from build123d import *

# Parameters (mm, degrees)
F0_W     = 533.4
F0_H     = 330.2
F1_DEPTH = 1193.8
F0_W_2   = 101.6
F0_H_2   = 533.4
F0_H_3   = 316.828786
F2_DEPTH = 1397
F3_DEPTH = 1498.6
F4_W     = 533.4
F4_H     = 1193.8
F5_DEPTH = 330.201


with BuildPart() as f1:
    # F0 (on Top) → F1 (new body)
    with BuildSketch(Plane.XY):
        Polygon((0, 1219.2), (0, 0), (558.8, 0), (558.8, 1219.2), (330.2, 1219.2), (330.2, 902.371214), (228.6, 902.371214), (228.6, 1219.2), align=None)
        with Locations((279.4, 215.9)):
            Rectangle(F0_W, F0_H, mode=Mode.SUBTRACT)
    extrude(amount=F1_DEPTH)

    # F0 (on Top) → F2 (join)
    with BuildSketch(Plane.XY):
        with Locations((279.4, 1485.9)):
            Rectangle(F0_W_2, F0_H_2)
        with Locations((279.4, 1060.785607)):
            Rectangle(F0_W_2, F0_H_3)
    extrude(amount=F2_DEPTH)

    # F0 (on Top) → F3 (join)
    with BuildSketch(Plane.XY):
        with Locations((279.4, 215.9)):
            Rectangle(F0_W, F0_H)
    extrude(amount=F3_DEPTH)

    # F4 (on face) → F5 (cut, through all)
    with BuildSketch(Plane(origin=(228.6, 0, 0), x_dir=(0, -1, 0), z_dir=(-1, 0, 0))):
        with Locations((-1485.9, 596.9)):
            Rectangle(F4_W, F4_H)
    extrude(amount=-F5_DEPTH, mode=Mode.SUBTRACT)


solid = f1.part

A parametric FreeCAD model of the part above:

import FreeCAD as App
import Part
import Sketcher
from FreeCAD import Vector
Q = App.Units.Quantity


def add_polygon(sketch, points):
    """Adds a closed chain of lines whose ends are joined by coincident constraints."""
    first, n = sketch.GeometryCount, len(points)
    for a, b in zip(points, points[1:] + points[:1]):
        sketch.addGeometry(Part.LineSegment(App.Vector(*a, 0), App.Vector(*b, 0)), False)
    for i in range(n):
        sketch.addConstraint(Sketcher.Constraint("Coincident", first + i, 2, first + (i + 1) % n, 1))

doc = App.newDocument("Part")
params = doc.addObject("Spreadsheet::Sheet", "Params")
for row, (alias, value) in enumerate([
    ("sketch1_width", "22 in"),
    ("sketch1_width2", "9 in"),
    ("sketch1_width3", "21 in"),
    ("sketch1_height", "48 in"),
    ("sketch1_height2", "13 in"),
    ("pad1_length", "47 in"),
    ("sketch2_width", "4 in"),
    ("pad2_length", "55 in"),
    ("sketch3_width", "21 in"),
    ("sketch3_height", "13 in"),
    ("pad3_length", "59 in"),
    ("sketch4_width", "21 in"),
    ("sketch4_height", "47 in"),
], start=1):
    params.set(f"A{row}", alias)
    params.set(f"B{row}", "=" + value)
    params.setAlias(f"B{row}", alias)

body = doc.addObject("PartDesign::Body", "Body")

sketch1 = body.newObject("Sketcher::SketchObject", "Sketch")
sketch1.AttachmentSupport = (doc.getObject("XY_Plane"), [""])
sketch1.MapMode = "FlatFace"
add_polygon(sketch1, [(0, 1219.2), (0, 0), (558.8, 0), (558.8, 1219.2), (330.2, 1219.2), (330.2, 902.371214), (228.6, 902.371214), (228.6, 1219.2)])
add_polygon(sketch1, [(546.1, 50.8), (12.7, 50.8), (12.7, 381), (546.1, 381)])
sketch1.addConstraint(Sketcher.Constraint("Vertical", 0))
sketch1.addConstraint(Sketcher.Constraint("Horizontal", 1))
sketch1.addConstraint(Sketcher.Constraint("Vertical", 2))
sketch1.addConstraint(Sketcher.Constraint("Horizontal", 3))
sketch1.addConstraint(Sketcher.Constraint("Vertical", 4))
sketch1.addConstraint(Sketcher.Constraint("Horizontal", 5))
sketch1.addConstraint(Sketcher.Constraint("Vertical", 6))
sketch1.addConstraint(Sketcher.Constraint("Horizontal", 7))
sketch1.addConstraint(Sketcher.Constraint("Horizontal", 8))
sketch1.addConstraint(Sketcher.Constraint("Vertical", 9))
sketch1.addConstraint(Sketcher.Constraint("Horizontal", 10))
sketch1.addConstraint(Sketcher.Constraint("Vertical", 11))
sketch1.addConstraint(Sketcher.Constraint("Coincident", 0, 2, -1, 1))
sketch1.addConstraint(Sketcher.Constraint("Horizontal", 3, 2, 6, 2))
sketch1.addConstraint(Sketcher.Constraint("Equal", 3, 7))
sketch1.addConstraint(Sketcher.Constraint("DistanceX", 1, 1, 1, 2, Q("22 in")))
sketch1.addConstraint(Sketcher.Constraint("DistanceX", 3, 2, 3, 1, Q("9 in")))
sketch1.addConstraint(Sketcher.Constraint("DistanceX", 8, 2, 8, 1, Q("21 in")))
sketch1.addConstraint(Sketcher.Constraint("DistanceY", 0, 2, 0, 1, Q("48 in")))
sketch1.addConstraint(Sketcher.Constraint("DistanceY", 9, 1, 9, 2, Q("13 in")))
sketch1.addConstraint(Sketcher.Constraint("DistanceY", -1, 1, 8, 2, Q("2 in")))
sketch1.addConstraint(Sketcher.Constraint("DistanceX", -1, 1, 8, 2, Q("0.5 in")))
sketch1.addConstraint(Sketcher.Constraint("DistanceY", 4, 2, 4, 1, 316.828786))
sketch1.setExpression("Constraints[27]", "Params.sketch1_width")
sketch1.setExpression("Constraints[28]", "Params.sketch1_width2")
sketch1.setExpression("Constraints[29]", "Params.sketch1_width3")
sketch1.setExpression("Constraints[30]", "Params.sketch1_height")
sketch1.setExpression("Constraints[31]", "Params.sketch1_height2")
pad1 = body.newObject("PartDesign::Pad", "Pad")
pad1.Profile = sketch1
pad1.setExpression("Length", "Params.pad1_length")

sketch2 = body.newObject("Sketcher::SketchObject", "Sketch001")
sketch2.AttachmentSupport = (doc.getObject("XY_Plane"), [""])
sketch2.MapMode = "FlatFace"
add_polygon(sketch2, [(228.6, 1752.6), (228.6, 902.371214), (330.2, 902.371214), (330.2, 1752.6)])
sketch2.addConstraint(Sketcher.Constraint("Vertical", 0))
sketch2.addConstraint(Sketcher.Constraint("Horizontal", 1))
sketch2.addConstraint(Sketcher.Constraint("Vertical", 2))
sketch2.addConstraint(Sketcher.Constraint("Horizontal", 3))
sketch2.addConstraint(Sketcher.Constraint("DistanceX", 1, 1, 1, 2, Q("4 in")))
sketch2.addConstraint(Sketcher.Constraint("DistanceX", -1, 1, 0, 2, Q("9 in")))
sketch2.addConstraint(Sketcher.Constraint("DistanceY", -1, 1, 2, 2, Q("69 in")))
sketch2.addConstraint(Sketcher.Constraint("DistanceY", 0, 2, 0, 1, 850.228786))
sketch2.setExpression("Constraints[8]", "Params.sketch2_width")
pad2 = body.newObject("PartDesign::Pad", "Pad001")
pad2.Profile = sketch2
pad2.setExpression("Length", "Params.pad2_length")

sketch3 = body.newObject("Sketcher::SketchObject", "Sketch002")
sketch3.AttachmentSupport = (doc.getObject("XY_Plane"), [""])
sketch3.MapMode = "FlatFace"
add_polygon(sketch3, [(12.7, 381), (12.7, 50.8), (546.1, 50.8), (546.1, 381)])
sketch3.addConstraint(Sketcher.Constraint("Vertical", 0))
sketch3.addConstraint(Sketcher.Constraint("Horizontal", 1))
sketch3.addConstraint(Sketcher.Constraint("Vertical", 2))
sketch3.addConstraint(Sketcher.Constraint("Horizontal", 3))
sketch3.addConstraint(Sketcher.Constraint("DistanceX", 1, 1, 1, 2, Q("21 in")))
sketch3.addConstraint(Sketcher.Constraint("DistanceY", 0, 2, 0, 1, Q("13 in")))
sketch3.addConstraint(Sketcher.Constraint("DistanceY", -1, 1, 0, 2, Q("2 in")))
sketch3.addConstraint(Sketcher.Constraint("DistanceX", -1, 1, 0, 2, Q("0.5 in")))
sketch3.setExpression("Constraints[8]", "Params.sketch3_width")
sketch3.setExpression("Constraints[9]", "Params.sketch3_height")
pad3 = body.newObject("PartDesign::Pad", "Pad002")
pad3.Profile = sketch3
pad3.setExpression("Length", "Params.pad3_length")

sketch4 = body.newObject("Sketcher::SketchObject", "Sketch003")
sketch4.AttachmentSupport = (doc.getObject("YZ_Plane"), [""])
sketch4.MapMode = "FlatFace"
sketch4.AttachmentOffset = App.Placement(Vector(0, 0, 9 * 25.4), App.Rotation())
add_polygon(sketch4, [(1752.6, 1193.8), (1752.6, 0), (1219.2, 0), (1219.2, 1193.8)])
sketch4.addConstraint(Sketcher.Constraint("Vertical", 0))
sketch4.addConstraint(Sketcher.Constraint("Horizontal", 1))
sketch4.addConstraint(Sketcher.Constraint("Vertical", 2))
sketch4.addConstraint(Sketcher.Constraint("Horizontal", 3))
sketch4.addConstraint(Sketcher.Constraint("PointOnObject", 0, 2, -1))
sketch4.addConstraint(Sketcher.Constraint("DistanceX", 1, 2, 1, 1, Q("21 in")))
sketch4.addConstraint(Sketcher.Constraint("DistanceY", 0, 2, 0, 1, Q("47 in")))
sketch4.addConstraint(Sketcher.Constraint("DistanceX", -1, 1, 0, 2, Q("69 in")))
sketch4.setExpression("Constraints[9]", "Params.sketch4_width")
sketch4.setExpression("Constraints[10]", "Params.sketch4_height")
pocket1 = body.newObject("PartDesign::Pocket", "Pocket")
pocket1.Profile = sketch4
pocket1.Type = "ThroughAll"
pocket1.Reversed = True

doc.recompute()
